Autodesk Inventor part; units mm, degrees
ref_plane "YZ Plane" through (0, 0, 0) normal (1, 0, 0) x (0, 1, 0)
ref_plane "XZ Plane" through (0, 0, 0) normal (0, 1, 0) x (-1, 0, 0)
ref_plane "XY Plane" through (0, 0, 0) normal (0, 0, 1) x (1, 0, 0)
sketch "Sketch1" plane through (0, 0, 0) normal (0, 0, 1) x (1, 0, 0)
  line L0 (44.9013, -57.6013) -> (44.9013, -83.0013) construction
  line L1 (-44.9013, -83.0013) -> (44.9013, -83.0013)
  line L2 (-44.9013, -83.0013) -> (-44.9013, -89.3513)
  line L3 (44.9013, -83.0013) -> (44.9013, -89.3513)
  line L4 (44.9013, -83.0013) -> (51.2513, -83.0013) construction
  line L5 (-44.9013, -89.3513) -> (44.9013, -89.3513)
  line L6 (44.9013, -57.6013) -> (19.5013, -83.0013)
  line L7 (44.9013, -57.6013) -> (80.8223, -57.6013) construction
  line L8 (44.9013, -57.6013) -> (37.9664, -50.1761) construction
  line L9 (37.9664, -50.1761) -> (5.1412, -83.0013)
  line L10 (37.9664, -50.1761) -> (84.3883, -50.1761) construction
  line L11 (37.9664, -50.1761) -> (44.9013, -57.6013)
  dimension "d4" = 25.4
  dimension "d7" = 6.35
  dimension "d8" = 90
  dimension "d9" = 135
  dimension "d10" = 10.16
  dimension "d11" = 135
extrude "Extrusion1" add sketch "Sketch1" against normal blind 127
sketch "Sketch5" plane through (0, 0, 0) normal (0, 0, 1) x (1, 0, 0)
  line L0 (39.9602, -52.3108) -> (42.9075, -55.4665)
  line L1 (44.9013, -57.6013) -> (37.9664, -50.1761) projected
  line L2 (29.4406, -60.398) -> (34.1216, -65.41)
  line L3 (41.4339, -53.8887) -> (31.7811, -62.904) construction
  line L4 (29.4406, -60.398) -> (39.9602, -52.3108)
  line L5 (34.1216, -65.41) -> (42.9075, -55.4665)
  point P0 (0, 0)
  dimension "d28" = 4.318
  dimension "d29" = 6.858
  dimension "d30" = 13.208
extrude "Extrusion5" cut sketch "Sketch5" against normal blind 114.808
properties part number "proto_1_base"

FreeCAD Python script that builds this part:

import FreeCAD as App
import Part
import Sketcher
from FreeCAD import Vector
Q = App.Units.Quantity


def add_polygon(sketch, points):
    """Adds a closed chain of lines whose ends are joined by coincident constraints."""
    first, n = sketch.GeometryCount, len(points)
    for a, b in zip(points, points[1:] + points[:1]):
        sketch.addGeometry(Part.LineSegment(App.Vector(*a, 0), App.Vector(*b, 0)), False)
    for i in range(n):
        sketch.addConstraint(Sketcher.Constraint("Coincident", first + i, 2, first + (i + 1) % n, 1))

doc = App.newDocument("Part")
body = doc.addObject("PartDesign::Body", "Body")

# Sketch on XY plane
sketch1 = doc.addObject("Sketcher::SketchObject", "Sketch")
body.addObject(sketch1)
sketch1.AttachmentSupport = (doc.XY_Plane, [""])
sketch1.MapMode = "FlatFace"
add_polygon(sketch1, [(5, -83), (-45, -83), (-45, -89), (45, -89), (45, -83), (20, -83), (45, -58), (38, -50)])  # lines 0-7
sketch1.addConstraint(Sketcher.Constraint("Horizontal", 0))
sketch1.addConstraint(Sketcher.Constraint("Vertical", 1))
sketch1.addConstraint(Sketcher.Constraint("Horizontal", 2))
sketch1.addConstraint(Sketcher.Constraint("Vertical", 3))
sketch1.addConstraint(Sketcher.Constraint("Horizontal", 4))
sketch1.addConstraint(Sketcher.Constraint("Symmetric", 0, 2, 3, 2, -2))
sketch1.addConstraint(Sketcher.Constraint("Parallel", 5, 7))
sketch1.addConstraint(Sketcher.Constraint("Vertical", 3, 2, 5, 2))
sketch1.addConstraint(Sketcher.Constraint("DistanceX", 4, 2, 4, 1, Q("1 in")))
sketch1.addConstraint(Sketcher.Constraint("Angle", 7, Q("-135 deg")))
sketch1.addConstraint(Sketcher.Constraint("Distance", 6, Q("0.4 in")))
sketch1.addConstraint(Sketcher.Constraint("DistanceY", 1, 2, 1, 1, Q("0.25 in")))
sketch1.addConstraint(Sketcher.Constraint("DistanceX", 0, 2, 0, 1, 50.0425))
sketch1.addConstraint(Sketcher.Constraint("DistanceX", 2, 1, 2, 2, 89.8026))
sketch1.addConstraint(Sketcher.Constraint("DistanceY", 0, 2, -1, 1, 83.0013))
pad1 = doc.addObject("PartDesign::Pad", "Pad")
body.addObject(pad1)
pad1.Profile = sketch1
pad1.Length = Q("5 in")
pad1.Reversed = True

# Sketch on XY plane
sketch2 = doc.addObject("Sketcher::SketchObject", "Sketch001")
body.addObject(sketch2)
sketch2.AttachmentSupport = (doc.XY_Plane, [""])
sketch2.MapMode = "FlatFace"
add_polygon(sketch2, [(42.9, -55.5), (40, -52.3), (29.4, -60.4), (34.1, -65.4)])  # lines 0-3
sketch2.addConstraint(Sketcher.Constraint("Parallel", 0, 2))
sketch2.addConstraint(Sketcher.Constraint("Equal", 1, 3))
sketch2.addConstraint(Sketcher.Constraint("Distance", 0, Q("0.17 in")))
sketch2.addConstraint(Sketcher.Constraint("Distance", 2, Q("0.27 in")))
sketch2.addConstraint(Sketcher.Constraint("Distance", 1, Q("0.5224 in")))
sketch2.addConstraint(Sketcher.Constraint("DistanceY", 2, 2, -1, 1, Q("2.5752 in")))
sketch2.addConstraint(Sketcher.Constraint("DistanceY", 1, 2, 0, 2, Q("0.3184 in")))
sketch2.addConstraint(Sketcher.Constraint("DistanceX", -1, 1, 0, 2, 39.9602))
pocket1 = doc.addObject("PartDesign::Pocket", "Pocket")
body.addObject(pocket1)
pocket1.Profile = sketch2
pocket1.Length = Q("4.52 in")

doc.recompute()
